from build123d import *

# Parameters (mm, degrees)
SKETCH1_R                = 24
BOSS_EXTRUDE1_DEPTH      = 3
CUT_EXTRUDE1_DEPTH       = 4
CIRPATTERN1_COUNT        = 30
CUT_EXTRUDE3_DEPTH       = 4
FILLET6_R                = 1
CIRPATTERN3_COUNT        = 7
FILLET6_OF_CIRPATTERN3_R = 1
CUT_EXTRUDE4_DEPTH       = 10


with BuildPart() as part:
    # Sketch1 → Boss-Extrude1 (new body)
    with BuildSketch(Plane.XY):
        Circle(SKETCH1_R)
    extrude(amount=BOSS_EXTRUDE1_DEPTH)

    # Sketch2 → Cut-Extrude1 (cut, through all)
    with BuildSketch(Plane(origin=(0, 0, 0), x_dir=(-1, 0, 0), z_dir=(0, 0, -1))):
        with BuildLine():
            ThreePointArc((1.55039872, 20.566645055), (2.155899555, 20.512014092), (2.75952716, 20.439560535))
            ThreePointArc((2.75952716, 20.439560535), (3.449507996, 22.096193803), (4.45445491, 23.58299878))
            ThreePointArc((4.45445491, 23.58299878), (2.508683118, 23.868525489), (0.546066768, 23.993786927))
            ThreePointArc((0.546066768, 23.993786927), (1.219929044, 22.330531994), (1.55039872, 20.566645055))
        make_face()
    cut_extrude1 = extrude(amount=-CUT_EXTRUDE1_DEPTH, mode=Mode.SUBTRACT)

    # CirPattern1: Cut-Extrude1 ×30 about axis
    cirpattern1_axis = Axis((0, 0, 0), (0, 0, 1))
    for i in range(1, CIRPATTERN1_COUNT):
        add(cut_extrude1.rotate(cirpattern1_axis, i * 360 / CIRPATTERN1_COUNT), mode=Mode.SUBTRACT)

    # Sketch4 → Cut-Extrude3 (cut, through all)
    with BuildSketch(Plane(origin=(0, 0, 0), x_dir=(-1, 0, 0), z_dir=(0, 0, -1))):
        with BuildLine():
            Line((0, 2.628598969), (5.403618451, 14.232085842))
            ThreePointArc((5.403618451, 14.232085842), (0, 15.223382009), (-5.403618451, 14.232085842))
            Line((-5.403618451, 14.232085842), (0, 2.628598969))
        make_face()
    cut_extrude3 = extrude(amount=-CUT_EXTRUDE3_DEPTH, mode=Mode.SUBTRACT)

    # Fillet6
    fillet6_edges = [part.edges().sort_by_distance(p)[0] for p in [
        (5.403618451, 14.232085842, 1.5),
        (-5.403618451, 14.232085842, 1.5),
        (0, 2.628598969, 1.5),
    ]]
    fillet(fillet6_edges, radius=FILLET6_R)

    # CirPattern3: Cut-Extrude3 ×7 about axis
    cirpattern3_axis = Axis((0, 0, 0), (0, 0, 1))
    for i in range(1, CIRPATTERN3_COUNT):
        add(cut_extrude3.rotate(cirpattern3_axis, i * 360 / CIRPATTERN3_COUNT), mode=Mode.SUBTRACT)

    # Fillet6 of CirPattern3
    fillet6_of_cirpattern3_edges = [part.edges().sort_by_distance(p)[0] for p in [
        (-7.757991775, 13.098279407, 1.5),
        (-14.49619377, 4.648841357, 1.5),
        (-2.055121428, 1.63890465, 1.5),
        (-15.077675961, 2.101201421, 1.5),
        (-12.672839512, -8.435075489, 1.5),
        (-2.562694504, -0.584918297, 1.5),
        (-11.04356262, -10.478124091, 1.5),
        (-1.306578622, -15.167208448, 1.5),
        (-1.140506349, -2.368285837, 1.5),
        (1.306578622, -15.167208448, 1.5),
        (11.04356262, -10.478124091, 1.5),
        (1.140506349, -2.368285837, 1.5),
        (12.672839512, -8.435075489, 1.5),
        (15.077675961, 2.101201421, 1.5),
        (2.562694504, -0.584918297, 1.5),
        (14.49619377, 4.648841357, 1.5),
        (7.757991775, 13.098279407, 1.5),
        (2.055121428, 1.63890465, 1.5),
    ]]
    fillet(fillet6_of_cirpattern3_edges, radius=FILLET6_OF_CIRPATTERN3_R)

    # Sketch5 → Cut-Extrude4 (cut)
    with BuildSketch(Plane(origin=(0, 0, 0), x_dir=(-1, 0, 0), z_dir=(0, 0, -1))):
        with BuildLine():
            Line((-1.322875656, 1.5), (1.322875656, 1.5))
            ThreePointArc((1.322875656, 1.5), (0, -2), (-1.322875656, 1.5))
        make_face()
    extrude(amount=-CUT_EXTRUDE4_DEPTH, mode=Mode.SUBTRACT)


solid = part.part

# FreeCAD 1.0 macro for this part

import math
import FreeCAD as App
import Part
import Sketcher
from FreeCAD import Vector


def edges_at(feature, points):
    """Names of the edges that pass closest to the given points."""
    edges = feature.Shape.Edges
    near = lambda p: min(range(len(edges)), key=lambda i: edges[i].distToShape(Part.Vertex(*p))[0])
    return sorted({f"Edge{near(p) + 1}" for p in points})

doc = App.newDocument("Part")
body = doc.addObject("PartDesign::Body", "Body")

sketch1 = doc.addObject("Sketcher::SketchObject", "Sketch")
body.addObject(sketch1)
sketch1.AttachmentSupport = (doc.XY_Plane, [""])
sketch1.MapMode = "FlatFace"
sketch1.addGeometry(Part.Circle(Vector(0, 0, 0), Vector(0, 0, 1), 24), False)
sketch1.addConstraint([
    Sketcher.Constraint("Coincident", 0, 3, -1, 1),
    Sketcher.Constraint("Diameter", 0, 48.0),
])
pad1 = doc.addObject("PartDesign::Pad", "Pad")
body.addObject(pad1)
pad1.Profile = sketch1
pad1.Length = 3

sketch2 = doc.addObject("Sketcher::SketchObject", "Sketch001")
body.addObject(sketch2)
sketch2.AttachmentSupport = (doc.XY_Plane, [""])
sketch2.MapMode = "FlatFace"
sketch2.addGeometry([
    Part.ArcOfCircle(Part.Circle(Vector(0, 0, 0), Vector(0, 0, 1), 20.625), math.radians(94.311039), math.radians(97.688961)),
    Part.ArcOfCircle(Part.Circle(Vector(-11.37132, 17.824789, 0), Vector(0, 0, 1), 9), math.radians(16.889701), math.radians(39.776991)),
    Part.ArcOfCircle(Part.Circle(Vector(0, 0, 0), Vector(0, 0, 1), 24), math.radians(91.303751), math.radians(100.696249)),
    Part.ArcOfCircle(Part.Circle(Vector(7.416847, 19.799505, 0), Vector(0, 0, 1), 9), math.radians(152.223009), math.radians(175.110299)),
], False)
sketch2.addConstraint([
    Sketcher.Constraint("Coincident", 0, 2, 1, 1),
    Sketcher.Constraint("Coincident", 1, 2, 2, 2),
    Sketcher.Constraint("Coincident", 2, 1, 3, 1),
    Sketcher.Constraint("Coincident", 3, 2, 0, 1),
    Sketcher.Constraint("Coincident", 0, 3, -1, 1),
    Sketcher.Constraint("Coincident", 2, 3, -1, 1),
    Sketcher.Constraint("Equal", 1, 3),
    Sketcher.Constraint("Radius", 1, 9.0),
    Sketcher.Constraint("Radius", 2, 24.0),
    Sketcher.Constraint("Radius", 0, 20.625),
    Sketcher.Constraint("DistanceY", -1, 1, 1, 2, 23.582999),
    Sketcher.Constraint("DistanceY", 1, 3, 2, 1, 6.168998),
    Sketcher.Constraint("DistanceX", 3, 2, -1, 1, 1.550399),
    Sketcher.Constraint("DistanceX", 1, 2, 3, 3, 11.871302),
])
pocket1 = doc.addObject("PartDesign::Pocket", "Pocket")
body.addObject(pocket1)
pocket1.Profile = sketch2
pocket1.Type = "ThroughAll"
pocket1.Reversed = True
doc.recompute()

polarpattern = doc.addObject("PartDesign::PolarPattern", "PolarPattern")
body.addObject(polarpattern)
polarpattern.Originals = [pocket1]
polarpattern.Axis = (doc.Z_Axis, [""])
polarpattern.Angle = 360
polarpattern.Occurrences = 30
body.Tip = polarpattern

sketch3 = doc.addObject("Sketcher::SketchObject", "Sketch002")
body.addObject(sketch3)
sketch3.AttachmentSupport = (doc.XY_Plane, [""])
sketch3.MapMode = "FlatFace"
sketch3.addGeometry([
    Part.LineSegment(Vector(0, 2.628599, 0), Vector(-5.403618, 14.232086, 0)),
    Part.ArcOfCircle(Part.Circle(Vector(0, 0, 0), Vector(0, 0, 1), 15.223382), math.radians(69.209302), math.radians(110.790698)),
    Part.LineSegment(Vector(5.403618, 14.232086, 0), Vector(0, 2.628599, 0)),
], False)
sketch3.addConstraint([
    Sketcher.Constraint("Coincident", 0, 2, 1, 2),
    Sketcher.Constraint("Coincident", 1, 1, 2, 1),
    Sketcher.Constraint("Coincident", 2, 2, 0, 1),
    Sketcher.Constraint("Coincident", 1, 3, -1, 1),
    Sketcher.Constraint("PointOnObject", 2, 2, -2),
    Sketcher.Constraint("Horizontal", 0, 2, 1, 1),
    Sketcher.Constraint("Distance", 0, 12.8),
    Sketcher.Constraint("Radius", 1, 15.223382),
    Sketcher.Constraint("DistanceY", -1, 1, 2, 2, 2.628599),
])
pocket2 = doc.addObject("PartDesign::Pocket", "Pocket001")
body.addObject(pocket2)
pocket2.Profile = sketch3
pocket2.Type = "ThroughAll"
pocket2.Reversed = True
doc.recompute()

fillet = doc.addObject("PartDesign::Fillet", "Fillet")
body.addObject(fillet)
fillet.Base = (pocket2, edges_at(pocket2, [(5.404, 14.232, 1.5), (-5.404, 14.232, 1.5), (0, 2.629, 1.5)]))
fillet.Radius = 1
doc.recompute()

polarpattern2 = doc.addObject("PartDesign::PolarPattern", "PolarPattern001")
body.addObject(polarpattern2)
polarpattern2.Originals = [pocket2]
polarpattern2.Axis = (doc.Z_Axis, [""])
polarpattern2.Angle = 360
polarpattern2.Occurrences = 7
body.Tip = polarpattern2
doc.recompute()

fillet2 = doc.addObject("PartDesign::Fillet", "Fillet001")
body.addObject(fillet2)
fillet2.Base = (polarpattern2, edges_at(polarpattern2, [
    (-7.758, 13.098, 1.5),
    (-14.496, 4.649, 1.5),
    (-2.055, 1.639, 1.5),
    (-15.078, 2.101, 1.5),
    (-12.673, -8.435, 1.5),
    (-2.563, -0.585, 1.5),
    (-11.044, -10.478, 1.5),
    (-1.307, -15.167, 1.5),
    (-1.141, -2.368, 1.5),
    (1.307, -15.167, 1.5),
    (11.044, -10.478, 1.5),
    (1.141, -2.368, 1.5),
    (12.673, -8.435, 1.5),
    (15.078, 2.101, 1.5),
    (2.563, -0.585, 1.5),
    (14.496, 4.649, 1.5),
    (7.758, 13.098, 1.5),
    (2.055, 1.639, 1.5),
]))
fillet2.Radius = 1

sketch4 = doc.addObject("Sketcher::SketchObject", "Sketch003")
body.addObject(sketch4)
sketch4.AttachmentSupport = (doc.XY_Plane, [""])
sketch4.MapMode = "FlatFace"
sketch4.addGeometry([
    Part.LineSegment(Vector(-1.322876, 1.5, 0), Vector(1.322876, 1.5, 0)),
    Part.ArcOfCircle(Part.Circle(Vector(0, 0, 0), Vector(0, 0, 1), 2), math.radians(131.409622), math.radians(408.590378)),
], False)
sketch4.addConstraint([
    Sketcher.Constraint("Coincident", 0, 1, 1, 1),
    Sketcher.Constraint("Coincident", 1, 2, 0, 2),
    Sketcher.Constraint("Horizontal", 0),
    Sketcher.Constraint("Coincident", 1, 3, -1, 1),
    Sketcher.Constraint("Radius", 1, 2.0),
    Sketcher.Constraint("DistanceY", -1, 1, 0, 1, 1.5),
])
pocket3 = doc.addObject("PartDesign::Pocket", "Pocket002")
body.addObject(pocket3)
pocket3.Profile = sketch4
pocket3.Length = 10
pocket3.Reversed = True

doc.recompute()
